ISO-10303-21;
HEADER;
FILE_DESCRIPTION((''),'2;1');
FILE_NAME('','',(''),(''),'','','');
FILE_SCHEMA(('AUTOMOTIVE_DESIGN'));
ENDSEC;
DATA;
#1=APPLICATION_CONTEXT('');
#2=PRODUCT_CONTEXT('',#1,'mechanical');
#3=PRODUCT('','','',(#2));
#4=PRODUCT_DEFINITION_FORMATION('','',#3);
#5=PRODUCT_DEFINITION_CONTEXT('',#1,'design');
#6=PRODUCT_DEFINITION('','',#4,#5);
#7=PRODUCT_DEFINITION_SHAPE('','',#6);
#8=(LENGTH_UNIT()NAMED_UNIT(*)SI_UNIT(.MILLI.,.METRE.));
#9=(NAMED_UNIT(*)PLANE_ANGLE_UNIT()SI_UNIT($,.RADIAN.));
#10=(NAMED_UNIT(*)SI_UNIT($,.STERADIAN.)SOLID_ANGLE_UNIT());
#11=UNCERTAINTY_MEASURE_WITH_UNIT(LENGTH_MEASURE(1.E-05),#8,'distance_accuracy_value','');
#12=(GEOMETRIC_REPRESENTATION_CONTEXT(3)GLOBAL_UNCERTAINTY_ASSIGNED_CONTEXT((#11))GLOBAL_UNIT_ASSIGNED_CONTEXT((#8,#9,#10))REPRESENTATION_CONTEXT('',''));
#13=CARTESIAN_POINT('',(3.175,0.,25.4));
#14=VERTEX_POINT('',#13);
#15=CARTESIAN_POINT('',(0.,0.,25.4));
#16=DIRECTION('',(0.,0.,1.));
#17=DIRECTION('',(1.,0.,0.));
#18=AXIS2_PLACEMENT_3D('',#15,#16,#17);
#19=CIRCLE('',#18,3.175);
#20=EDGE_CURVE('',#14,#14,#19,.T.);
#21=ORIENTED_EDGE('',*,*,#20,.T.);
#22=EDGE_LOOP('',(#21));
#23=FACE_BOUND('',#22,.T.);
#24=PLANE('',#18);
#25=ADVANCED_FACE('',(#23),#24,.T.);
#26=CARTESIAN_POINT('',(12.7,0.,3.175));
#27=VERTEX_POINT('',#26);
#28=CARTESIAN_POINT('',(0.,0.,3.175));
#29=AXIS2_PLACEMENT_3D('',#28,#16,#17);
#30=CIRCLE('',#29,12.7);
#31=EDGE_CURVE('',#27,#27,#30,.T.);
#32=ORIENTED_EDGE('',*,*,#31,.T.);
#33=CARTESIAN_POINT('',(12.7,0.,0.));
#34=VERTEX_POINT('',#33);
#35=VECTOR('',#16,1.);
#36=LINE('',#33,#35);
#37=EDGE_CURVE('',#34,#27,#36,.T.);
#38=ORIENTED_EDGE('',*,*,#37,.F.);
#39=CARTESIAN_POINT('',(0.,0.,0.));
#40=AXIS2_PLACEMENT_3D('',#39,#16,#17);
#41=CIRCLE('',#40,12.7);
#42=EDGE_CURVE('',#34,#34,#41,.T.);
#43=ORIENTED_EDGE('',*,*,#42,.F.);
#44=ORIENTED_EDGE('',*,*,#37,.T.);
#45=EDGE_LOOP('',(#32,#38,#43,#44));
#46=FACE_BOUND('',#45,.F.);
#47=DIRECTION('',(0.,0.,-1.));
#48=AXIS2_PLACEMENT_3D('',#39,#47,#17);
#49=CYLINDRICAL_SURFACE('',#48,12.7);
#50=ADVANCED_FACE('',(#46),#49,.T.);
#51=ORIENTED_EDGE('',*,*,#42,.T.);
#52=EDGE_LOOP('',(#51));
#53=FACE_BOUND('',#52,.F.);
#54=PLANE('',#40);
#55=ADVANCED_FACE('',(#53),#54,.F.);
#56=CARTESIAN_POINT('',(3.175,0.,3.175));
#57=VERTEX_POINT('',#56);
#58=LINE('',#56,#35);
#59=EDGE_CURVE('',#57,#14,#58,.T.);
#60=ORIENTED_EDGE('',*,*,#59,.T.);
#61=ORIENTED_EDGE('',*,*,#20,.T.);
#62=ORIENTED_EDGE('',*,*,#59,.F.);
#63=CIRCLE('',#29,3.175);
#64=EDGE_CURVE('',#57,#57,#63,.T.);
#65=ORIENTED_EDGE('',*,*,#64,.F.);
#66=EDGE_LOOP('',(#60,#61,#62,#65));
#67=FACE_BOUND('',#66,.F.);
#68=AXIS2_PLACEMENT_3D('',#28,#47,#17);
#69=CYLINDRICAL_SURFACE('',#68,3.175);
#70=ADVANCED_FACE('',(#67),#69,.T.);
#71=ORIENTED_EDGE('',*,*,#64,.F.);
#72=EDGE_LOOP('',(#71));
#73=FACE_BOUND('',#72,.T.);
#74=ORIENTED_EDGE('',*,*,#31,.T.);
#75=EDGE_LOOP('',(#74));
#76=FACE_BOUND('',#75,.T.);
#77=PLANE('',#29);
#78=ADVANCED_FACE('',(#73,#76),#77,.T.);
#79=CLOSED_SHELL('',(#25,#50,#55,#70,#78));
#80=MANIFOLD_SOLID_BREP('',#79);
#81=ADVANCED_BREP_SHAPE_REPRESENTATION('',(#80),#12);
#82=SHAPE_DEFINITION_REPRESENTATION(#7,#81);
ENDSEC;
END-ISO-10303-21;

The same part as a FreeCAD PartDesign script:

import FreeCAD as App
import Part
import Sketcher

V = App.Vector
Q = App.Units.Quantity

doc = App.newDocument("Part")
params = doc.addObject("Spreadsheet::Sheet", "Params")
for row, (alias, value) in enumerate([
    ("sketch1_diameter", "1 in"),
    ("pad1_length", "0.125 in"),
    ("sketch2_diameter", "0.25 in"),
    ("pad2_length", "0.875 in"),
], start=1):
    params.set(f"A{row}", alias)
    params.set(f"B{row}", "=" + value)
    params.setAlias(f"B{row}", alias)

body = doc.addObject("PartDesign::Body", "Body")

# Sketch on XY plane
sketch1 = doc.addObject("Sketcher::SketchObject", "Sketch")
body.addObject(sketch1)
sketch1.AttachmentSupport = (doc.XY_Plane, [""])
sketch1.MapMode = "FlatFace"
sketch1.addGeometry(Part.Circle(V(0, 0, 0), V(0, 0, 1), 12.7), False)
sketch1.addConstraint([
    Sketcher.Constraint("Coincident", 0, 3, -1, 1),
    Sketcher.Constraint("Diameter", 0, Q("1 in")),
])
sketch1.setExpression("Constraints[1]", "Params.sketch1_diameter")
pad1 = doc.addObject("PartDesign::Pad", "Pad")
body.addObject(pad1)
pad1.Profile = sketch1
pad1.setExpression("Length", "Params.pad1_length")

# Sketch on XY plane
sketch2 = doc.addObject("Sketcher::SketchObject", "Sketch001")
body.addObject(sketch2)
sketch2.AttachmentSupport = (doc.XY_Plane, [""])
sketch2.MapMode = "FlatFace"
sketch2.AttachmentOffset = App.Placement(V(0, 0, 0.125 * 25.4), App.Rotation())
sketch2.addGeometry(Part.Circle(V(0, 0, 0), V(0, 0, 1), 3.175), False)
sketch2.addConstraint([
    Sketcher.Constraint("Coincident", 0, 3, -1, 1),
    Sketcher.Constraint("Diameter", 0, Q("0.25 in")),
])
sketch2.setExpression("Constraints[1]", "Params.sketch2_diameter")
pad2 = doc.addObject("PartDesign::Pad", "Pad001")
body.addObject(pad2)
pad2.Profile = sketch2
pad2.setExpression("Length", "Params.pad2_length")

doc.recompute()
